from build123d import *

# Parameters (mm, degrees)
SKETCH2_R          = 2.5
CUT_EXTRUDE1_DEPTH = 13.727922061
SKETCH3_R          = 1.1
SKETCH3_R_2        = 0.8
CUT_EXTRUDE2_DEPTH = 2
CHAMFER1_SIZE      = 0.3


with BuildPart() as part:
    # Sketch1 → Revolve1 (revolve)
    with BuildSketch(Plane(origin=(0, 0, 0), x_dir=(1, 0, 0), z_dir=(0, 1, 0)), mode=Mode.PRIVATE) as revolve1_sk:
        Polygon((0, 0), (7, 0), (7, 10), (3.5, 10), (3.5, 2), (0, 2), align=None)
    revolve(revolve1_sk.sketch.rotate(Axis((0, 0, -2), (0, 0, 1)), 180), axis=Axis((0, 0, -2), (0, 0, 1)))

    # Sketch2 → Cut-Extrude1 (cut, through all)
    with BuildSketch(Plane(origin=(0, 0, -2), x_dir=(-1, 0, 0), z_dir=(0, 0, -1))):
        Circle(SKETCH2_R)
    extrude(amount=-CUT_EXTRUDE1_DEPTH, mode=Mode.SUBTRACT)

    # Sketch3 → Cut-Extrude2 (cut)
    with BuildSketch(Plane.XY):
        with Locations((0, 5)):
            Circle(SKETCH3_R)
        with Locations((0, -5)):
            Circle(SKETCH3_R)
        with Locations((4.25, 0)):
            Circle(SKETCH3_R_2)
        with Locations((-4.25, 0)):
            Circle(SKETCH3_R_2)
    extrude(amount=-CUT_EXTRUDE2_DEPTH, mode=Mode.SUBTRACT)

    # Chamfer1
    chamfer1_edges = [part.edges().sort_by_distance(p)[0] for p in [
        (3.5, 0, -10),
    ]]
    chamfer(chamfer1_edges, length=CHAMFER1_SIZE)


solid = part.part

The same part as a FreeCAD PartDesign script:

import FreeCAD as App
import Part
import Sketcher

V = App.Vector
Q = App.Units.Quantity


def edges_at(feature, points):
    """Names of the edges that pass closest to the given points."""
    edges = feature.Shape.Edges
    near = lambda p: min(range(len(edges)), key=lambda i: edges[i].distToShape(Part.Vertex(*p))[0])
    return sorted({f"Edge{near(p) + 1}" for p in points})


def add_polygon(sketch, points):
    """Adds a closed chain of lines whose ends are joined by coincident constraints."""
    first, n = sketch.GeometryCount, len(points)
    for a, b in zip(points, points[1:] + points[:1]):
        sketch.addGeometry(Part.LineSegment(App.Vector(*a, 0), App.Vector(*b, 0)), False)
    for i in range(n):
        sketch.addConstraint(Sketcher.Constraint("Coincident", first + i, 2, first + (i + 1) % n, 1))

doc = App.newDocument("Part")
params = doc.addObject("Spreadsheet::Sheet", "Params")
for row, (alias, value) in enumerate([
    ("sketch1_width", "7 mm"),
    ("sketch1_height", "10 mm"),
    ("sketch1_height2", "8 mm"),
    ("revolution_angle", "360 deg"),
    ("sketch2_diameter", "5 mm"),
    ("sketch3_diameter", "2.2 mm"),
    ("sketch3_diameter2", "1.6 mm"),
    ("pocket2_length", "2 mm"),
    ("chamfer_size", "0.3 mm"),
], start=1):
    params.set(f"A{row}", alias)
    params.set(f"B{row}", "=" + value)
    params.setAlias(f"B{row}", alias)

body = doc.addObject("PartDesign::Body", "Body")

sketch1 = body.newObject("Sketcher::SketchObject", "Sketch")
sketch1.AttachmentSupport = (doc.getObject("XZ_Plane"), [""])
sketch1.MapMode = "FlatFace"
add_polygon(sketch1, [(0, 0), (7, 0), (7, -10), (3.5, -10), (3.5, -2), (0, -2)])
sketch1.addConstraint([
    Sketcher.Constraint("Horizontal", 0),
    Sketcher.Constraint("Vertical", 1),
    Sketcher.Constraint("Horizontal", 2),
    Sketcher.Constraint("Vertical", 3),
    Sketcher.Constraint("Horizontal", 4),
    Sketcher.Constraint("Vertical", 5),
    Sketcher.Constraint("Coincident", 5, 2, -1, 1),
    Sketcher.Constraint("Equal", 2, 4),
    Sketcher.Constraint("DistanceX", 0, 1, 0, 2, Q("7 mm")),
    Sketcher.Constraint("DistanceY", 1, 2, 1, 1, Q("10 mm")),
    Sketcher.Constraint("DistanceY", 3, 1, 3, 2, Q("8 mm")),
])
sketch1.setExpression("Constraints[14]", "Params.sketch1_width")
sketch1.setExpression("Constraints[15]", "Params.sketch1_height")
sketch1.setExpression("Constraints[16]", "Params.sketch1_height2")
revolution = body.newObject("PartDesign::Revolution", "Revolution")
revolution.Profile = sketch1
revolution.ReferenceAxis = (sketch1, ["V_Axis"])
revolution.setExpression("Angle", "Params.revolution_angle")

sketch2 = body.newObject("Sketcher::SketchObject", "Sketch001")
sketch2.AttachmentSupport = (doc.getObject("XY_Plane"), [""])
sketch2.MapMode = "FlatFace"
sketch2.AttachmentOffset = App.Placement(V(0, 0, -2), App.Rotation())
sketch2.addGeometry(Part.Circle(V(0, 0, 0), V(0, 0, 1), 2.5), False)
sketch2.addConstraint([
    Sketcher.Constraint("Coincident", 0, 3, -1, 1),
    Sketcher.Constraint("Diameter", 0, Q("5 mm")),
])
sketch2.setExpression("Constraints[1]", "Params.sketch2_diameter")
pocket1 = body.newObject("PartDesign::Pocket", "Pocket")
pocket1.Profile = sketch2
pocket1.Type = "ThroughAll"
pocket1.Reversed = True

sketch3 = body.newObject("Sketcher::SketchObject", "Sketch002")
sketch3.AttachmentSupport = (doc.getObject("XY_Plane"), [""])
sketch3.MapMode = "FlatFace"
sketch3.addGeometry([
    Part.Circle(V(0, 5, 0), V(0, 0, 1), 1.1),
    Part.Circle(V(0, -5, 0), V(0, 0, 1), 1.1),
    Part.Circle(V(4.25, 0, 0), V(0, 0, 1), 0.8),
    Part.Circle(V(-4.25, 0, 0), V(0, 0, 1), 0.8),
], False)
sketch3.addConstraint([
    Sketcher.Constraint("Equal", 0, 1),
    Sketcher.Constraint("Equal", 2, 3),
    Sketcher.Constraint("Symmetric", 0, 3, 1, 3, -1, 1),
    Sketcher.Constraint("Symmetric", 2, 3, 3, 3, -1, 1),
    Sketcher.Constraint("PointOnObject", 0, 3, -2),
    Sketcher.Constraint("PointOnObject", 2, 3, -1),
    Sketcher.Constraint("Diameter", 0, Q("2.2 mm")),
    Sketcher.Constraint("Diameter", 2, Q("1.6 mm")),
    Sketcher.Constraint("DistanceY", -1, 1, 0, 3, Q("5 mm")),
    Sketcher.Constraint("DistanceX", 3, 3, 2, 3, Q("8.5 mm")),
])
sketch3.setExpression("Constraints[6]", "Params.sketch3_diameter")
sketch3.setExpression("Constraints[7]", "Params.sketch3_diameter2")
pocket2 = body.newObject("PartDesign::Pocket", "Pocket001")
pocket2.Profile = sketch3
pocket2.setExpression("Length", "Params.pocket2_length")
doc.recompute()

chamfer = body.newObject("PartDesign::Chamfer", "Chamfer")
chamfer.Base = (pocket2, edges_at(pocket2, [(3.5, 0, -10)]))
chamfer.setExpression("Size", "Params.chamfer_size")

doc.recompute()
